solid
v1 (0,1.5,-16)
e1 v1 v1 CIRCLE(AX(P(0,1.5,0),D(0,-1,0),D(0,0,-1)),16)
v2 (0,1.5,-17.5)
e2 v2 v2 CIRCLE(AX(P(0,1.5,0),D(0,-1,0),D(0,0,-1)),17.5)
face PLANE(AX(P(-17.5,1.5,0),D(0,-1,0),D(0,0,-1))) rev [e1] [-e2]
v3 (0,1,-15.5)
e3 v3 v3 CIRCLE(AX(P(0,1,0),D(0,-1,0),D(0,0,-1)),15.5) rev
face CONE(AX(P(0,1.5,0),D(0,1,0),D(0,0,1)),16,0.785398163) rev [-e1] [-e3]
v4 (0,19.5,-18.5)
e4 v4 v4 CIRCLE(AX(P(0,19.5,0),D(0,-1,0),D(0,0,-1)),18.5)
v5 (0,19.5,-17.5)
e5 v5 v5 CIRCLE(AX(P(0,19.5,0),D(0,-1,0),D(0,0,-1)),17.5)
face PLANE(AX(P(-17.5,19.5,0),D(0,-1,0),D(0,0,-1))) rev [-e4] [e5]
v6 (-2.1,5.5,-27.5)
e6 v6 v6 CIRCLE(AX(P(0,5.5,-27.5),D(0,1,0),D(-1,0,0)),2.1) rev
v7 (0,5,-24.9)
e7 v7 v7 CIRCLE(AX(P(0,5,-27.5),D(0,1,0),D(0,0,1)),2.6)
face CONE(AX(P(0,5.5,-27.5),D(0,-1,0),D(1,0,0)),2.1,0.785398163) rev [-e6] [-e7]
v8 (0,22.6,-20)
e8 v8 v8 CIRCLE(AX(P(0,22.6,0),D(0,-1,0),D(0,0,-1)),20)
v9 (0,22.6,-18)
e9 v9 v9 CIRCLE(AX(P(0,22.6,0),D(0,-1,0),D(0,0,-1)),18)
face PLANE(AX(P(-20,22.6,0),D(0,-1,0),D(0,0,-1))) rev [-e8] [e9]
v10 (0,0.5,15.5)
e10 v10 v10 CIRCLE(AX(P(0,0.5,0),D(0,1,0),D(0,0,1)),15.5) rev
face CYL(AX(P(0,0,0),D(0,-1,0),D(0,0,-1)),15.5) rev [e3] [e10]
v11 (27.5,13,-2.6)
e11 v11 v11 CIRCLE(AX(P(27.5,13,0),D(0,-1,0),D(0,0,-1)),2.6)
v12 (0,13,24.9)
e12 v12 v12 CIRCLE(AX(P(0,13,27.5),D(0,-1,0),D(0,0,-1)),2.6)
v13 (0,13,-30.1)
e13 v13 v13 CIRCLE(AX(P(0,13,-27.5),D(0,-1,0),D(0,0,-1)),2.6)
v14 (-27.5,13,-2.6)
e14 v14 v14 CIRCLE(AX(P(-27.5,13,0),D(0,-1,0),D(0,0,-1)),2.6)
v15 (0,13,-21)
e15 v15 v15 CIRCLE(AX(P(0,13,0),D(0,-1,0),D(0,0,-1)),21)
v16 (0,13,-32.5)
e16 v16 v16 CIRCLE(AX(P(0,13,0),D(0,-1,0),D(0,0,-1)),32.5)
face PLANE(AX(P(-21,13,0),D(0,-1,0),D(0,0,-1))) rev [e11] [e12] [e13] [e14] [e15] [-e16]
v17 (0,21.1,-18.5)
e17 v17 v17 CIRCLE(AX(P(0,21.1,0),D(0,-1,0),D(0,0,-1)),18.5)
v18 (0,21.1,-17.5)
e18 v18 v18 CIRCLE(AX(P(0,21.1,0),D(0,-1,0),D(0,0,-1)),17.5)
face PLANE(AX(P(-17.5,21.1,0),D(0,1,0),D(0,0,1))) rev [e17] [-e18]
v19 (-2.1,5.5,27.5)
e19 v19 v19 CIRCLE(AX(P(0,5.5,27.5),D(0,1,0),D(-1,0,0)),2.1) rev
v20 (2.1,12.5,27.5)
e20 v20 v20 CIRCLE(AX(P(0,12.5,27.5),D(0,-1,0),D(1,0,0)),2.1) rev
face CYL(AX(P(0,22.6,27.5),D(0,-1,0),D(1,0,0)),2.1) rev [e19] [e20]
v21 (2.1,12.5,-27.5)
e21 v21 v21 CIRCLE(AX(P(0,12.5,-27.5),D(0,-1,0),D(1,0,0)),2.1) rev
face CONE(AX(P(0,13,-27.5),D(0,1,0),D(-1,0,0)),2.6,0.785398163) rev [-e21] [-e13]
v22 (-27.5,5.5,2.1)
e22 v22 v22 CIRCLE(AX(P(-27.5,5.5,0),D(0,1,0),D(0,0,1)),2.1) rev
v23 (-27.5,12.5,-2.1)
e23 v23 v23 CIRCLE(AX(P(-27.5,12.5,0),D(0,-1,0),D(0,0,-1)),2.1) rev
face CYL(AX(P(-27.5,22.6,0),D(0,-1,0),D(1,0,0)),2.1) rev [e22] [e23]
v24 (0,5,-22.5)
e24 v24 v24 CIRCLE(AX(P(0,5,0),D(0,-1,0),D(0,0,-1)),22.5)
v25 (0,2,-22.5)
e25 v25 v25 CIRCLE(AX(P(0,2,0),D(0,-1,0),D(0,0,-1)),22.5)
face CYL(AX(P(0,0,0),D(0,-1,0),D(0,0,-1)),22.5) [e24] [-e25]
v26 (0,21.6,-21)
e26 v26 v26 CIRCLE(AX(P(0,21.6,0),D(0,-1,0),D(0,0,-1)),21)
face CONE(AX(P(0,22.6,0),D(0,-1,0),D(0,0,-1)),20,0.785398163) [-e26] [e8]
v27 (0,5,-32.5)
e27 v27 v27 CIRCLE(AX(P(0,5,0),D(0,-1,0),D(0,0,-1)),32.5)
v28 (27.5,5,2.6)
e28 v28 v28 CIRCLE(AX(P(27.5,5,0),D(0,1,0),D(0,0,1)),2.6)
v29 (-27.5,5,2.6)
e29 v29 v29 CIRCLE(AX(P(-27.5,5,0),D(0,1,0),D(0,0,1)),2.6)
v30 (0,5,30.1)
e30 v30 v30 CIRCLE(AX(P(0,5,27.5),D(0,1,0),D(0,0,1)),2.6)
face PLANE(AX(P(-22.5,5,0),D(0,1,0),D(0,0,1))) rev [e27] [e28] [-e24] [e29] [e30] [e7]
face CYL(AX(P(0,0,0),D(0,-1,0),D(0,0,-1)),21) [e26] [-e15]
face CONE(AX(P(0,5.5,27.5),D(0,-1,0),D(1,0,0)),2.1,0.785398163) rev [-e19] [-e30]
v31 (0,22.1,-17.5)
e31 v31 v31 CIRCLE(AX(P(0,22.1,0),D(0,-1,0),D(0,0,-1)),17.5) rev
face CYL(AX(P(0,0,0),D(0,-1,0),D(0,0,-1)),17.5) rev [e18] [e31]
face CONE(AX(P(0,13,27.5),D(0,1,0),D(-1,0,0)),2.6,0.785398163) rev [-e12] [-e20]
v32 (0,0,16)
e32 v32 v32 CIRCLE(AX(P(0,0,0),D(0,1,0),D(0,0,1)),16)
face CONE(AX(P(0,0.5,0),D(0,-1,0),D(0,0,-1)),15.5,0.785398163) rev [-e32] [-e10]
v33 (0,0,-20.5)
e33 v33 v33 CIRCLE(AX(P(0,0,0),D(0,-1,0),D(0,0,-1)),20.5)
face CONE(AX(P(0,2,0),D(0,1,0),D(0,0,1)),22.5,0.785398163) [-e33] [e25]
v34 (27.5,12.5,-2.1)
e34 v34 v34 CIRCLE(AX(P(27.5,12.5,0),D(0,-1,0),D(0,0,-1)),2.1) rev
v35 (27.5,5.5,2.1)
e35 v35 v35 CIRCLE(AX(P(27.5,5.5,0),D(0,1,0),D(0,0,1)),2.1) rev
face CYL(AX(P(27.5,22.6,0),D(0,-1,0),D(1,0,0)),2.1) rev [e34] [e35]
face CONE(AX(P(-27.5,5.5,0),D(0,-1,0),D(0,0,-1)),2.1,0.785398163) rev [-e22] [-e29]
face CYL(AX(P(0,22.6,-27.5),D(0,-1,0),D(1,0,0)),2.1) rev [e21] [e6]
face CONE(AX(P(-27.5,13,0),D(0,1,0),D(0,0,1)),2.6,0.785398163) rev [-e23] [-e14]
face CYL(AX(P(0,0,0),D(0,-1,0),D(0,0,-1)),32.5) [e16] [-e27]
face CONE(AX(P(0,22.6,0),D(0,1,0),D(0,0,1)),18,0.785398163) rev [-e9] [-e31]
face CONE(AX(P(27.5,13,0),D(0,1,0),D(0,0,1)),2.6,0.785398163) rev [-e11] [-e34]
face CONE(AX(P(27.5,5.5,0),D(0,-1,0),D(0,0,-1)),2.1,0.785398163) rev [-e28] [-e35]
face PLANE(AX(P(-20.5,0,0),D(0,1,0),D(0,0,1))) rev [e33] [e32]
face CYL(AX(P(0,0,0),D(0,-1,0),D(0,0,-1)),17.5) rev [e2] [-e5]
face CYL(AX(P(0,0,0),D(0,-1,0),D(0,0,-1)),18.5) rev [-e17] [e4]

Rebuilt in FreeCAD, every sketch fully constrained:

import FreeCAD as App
import Part
import Sketcher
from FreeCAD import Vector
Q = App.Units.Quantity


def edges_at(feature, points):
    """Names of the edges that pass closest to the given points."""
    edges = feature.Shape.Edges
    near = lambda p: min(range(len(edges)), key=lambda i: edges[i].distToShape(Part.Vertex(*p))[0])
    return sorted({f"Edge{near(p) + 1}" for p in points})

doc = App.newDocument("Part")
params = doc.addObject("Spreadsheet::Sheet", "Params")
for row, (alias, value) in enumerate([
    ("sketch1_width", "5 mm"),
    ("sketch1_width2", "2 mm"),
    ("sketch1_width3", "1 mm"),
    ("sketch1_width4", "10 mm"),
    ("sketch1_height", "3 mm"),
    ("revolution_angle", "360 deg"),
    ("sketch2_diameter", "4.2 mm"),
    ("chamfer_size", "0.5 mm"),
    ("chamfer2_size", "0.5 mm"),
], start=1):
    params.set(f"A{row}", alias)
    params.set(f"B{row}", "=" + value)
    params.setAlias(f"B{row}", alias)

body = doc.addObject("PartDesign::Body", "Body")

sketch1 = doc.addObject("Sketcher::SketchObject", "Sketch")
body.addObject(sketch1)
sketch1.AttachmentSupport = (doc.XY_Plane, [""])
sketch1.MapMode = "FlatFace"
sketch1.addGeometry([
    Part.LineSegment(Vector(-22.5, 5, 0), Vector(-22.5, 2, 0)),
    Part.LineSegment(Vector(-22.5, 2, 0), Vector(-20.5, 0, 0)),
    Part.LineSegment(Vector(-20.5, 0, 0), Vector(-15.5, 0, 0)),
    Part.LineSegment(Vector(-15.5, 0, 0), Vector(-15.5, 1.5, 0)),
    Part.LineSegment(Vector(-15.5, 1.5, 0), Vector(-17.5, 1.5, 0)),
    Part.LineSegment(Vector(-17.5, 1.5, 0), Vector(-17.5, 19.5, 0)),
    Part.LineSegment(Vector(-17.5, 19.5, 0), Vector(-18.5, 19.5, 0)),
    Part.LineSegment(Vector(-18.5, 19.5, 0), Vector(-18.5, 21.1, 0)),
    Part.LineSegment(Vector(-18.5, 21.1, 0), Vector(-17.5, 21.1, 0)),
    Part.LineSegment(Vector(-17.5, 21.1, 0), Vector(-17.5, 22.6, 0)),
    Part.LineSegment(Vector(-17.5, 22.6, 0), Vector(-20, 22.6, 0)),
    Part.LineSegment(Vector(-20, 22.6, 0), Vector(-21, 21.6, 0)),
    Part.LineSegment(Vector(-21, 21.6, 0), Vector(-21, 13, 0)),
    Part.LineSegment(Vector(-21, 13, 0), Vector(-32.5, 13, 0)),
    Part.LineSegment(Vector(-32.5, 13, 0), Vector(-32.5, 5, 0)),
    Part.LineSegment(Vector(-32.5, 5, 0), Vector(-22.5, 5, 0)),
], False)
sketch1.addConstraint([
    Sketcher.Constraint("Coincident", 0, 2, 1, 1),
    Sketcher.Constraint("Coincident", 1, 2, 2, 1),
    Sketcher.Constraint("Coincident", 2, 2, 3, 1),
    Sketcher.Constraint("Coincident", 3, 2, 4, 1),
    Sketcher.Constraint("Coincident", 4, 2, 5, 1),
    Sketcher.Constraint("Coincident", 5, 2, 6, 1),
    Sketcher.Constraint("Coincident", 6, 2, 7, 1),
    Sketcher.Constraint("Coincident", 7, 2, 8, 1),
    Sketcher.Constraint("Coincident", 8, 2, 9, 1),
    Sketcher.Constraint("Coincident", 9, 2, 10, 1),
    Sketcher.Constraint("Coincident", 10, 2, 11, 1),
    Sketcher.Constraint("Coincident", 11, 2, 12, 1),
    Sketcher.Constraint("Coincident", 12, 2, 13, 1),
    Sketcher.Constraint("Coincident", 13, 2, 14, 1),
    Sketcher.Constraint("Coincident", 14, 2, 15, 1),
    Sketcher.Constraint("Coincident", 15, 2, 0, 1),
    Sketcher.Constraint("Vertical", 0),
    Sketcher.Constraint("Horizontal", 2),
    Sketcher.Constraint("Vertical", 3),
    Sketcher.Constraint("Horizontal", 4),
    Sketcher.Constraint("Vertical", 5),
    Sketcher.Constraint("Horizontal", 6),
    Sketcher.Constraint("Vertical", 7),
    Sketcher.Constraint("Horizontal", 8),
    Sketcher.Constraint("Vertical", 9),
    Sketcher.Constraint("Horizontal", 10),
    Sketcher.Constraint("Vertical", 12),
    Sketcher.Constraint("Horizontal", 13),
    Sketcher.Constraint("Vertical", 14),
    Sketcher.Constraint("Horizontal", 15),
    Sketcher.Constraint("PointOnObject", 1, 2, -1),
    Sketcher.Constraint("Perpendicular", 1, 11),
    Sketcher.Constraint("Vertical", 5, 2, 8, 2),
    Sketcher.Constraint("Equal", 3, 9),
    Sketcher.Constraint("DistanceX", 2, 1, 2, 2, 5.0),
    Sketcher.Constraint("DistanceX", 4, 2, 4, 1, 2.0),
    Sketcher.Constraint("DistanceX", 6, 2, 6, 1, 1.0),
    Sketcher.Constraint("DistanceX", 15, 1, 15, 2, 10.0),
    Sketcher.Constraint("DistanceY", 0, 2, 0, 1, 3.0),
    Sketcher.Constraint("DistanceY", 5, 1, 5, 2, 18.0),
    Sketcher.Constraint("DistanceY", 14, 2, 14, 1, 8.0),
    Sketcher.Constraint("Angle", 1, Q("-45 deg")),
    Sketcher.Constraint("DistanceX", 10, 2, 10, 1, 2.5),
    Sketcher.Constraint("DistanceX", 13, 2, 13, 1, 11.5),
    Sketcher.Constraint("DistanceY", 3, 1, 3, 2, 1.5),
    Sketcher.Constraint("DistanceY", 7, 1, 7, 2, 1.6),
    Sketcher.Constraint("DistanceY", 12, 2, 12, 1, 8.6),
    Sketcher.Constraint("DistanceX", 10, 2, -1, 1, 20.0),
])
sketch1.setExpression("Constraints[34]", "Params.sketch1_width")
sketch1.setExpression("Constraints[35]", "Params.sketch1_width2")
sketch1.setExpression("Constraints[36]", "Params.sketch1_width3")
sketch1.setExpression("Constraints[37]", "Params.sketch1_width4")
sketch1.setExpression("Constraints[38]", "Params.sketch1_height")
revolution = doc.addObject("PartDesign::Revolution", "Revolution")
body.addObject(revolution)
revolution.Profile = sketch1
revolution.ReferenceAxis = (sketch1, ["V_Axis"])
revolution.setExpression("Angle", "Params.revolution_angle")

sketch2 = doc.addObject("Sketcher::SketchObject", "Sketch001")
body.addObject(sketch2)
sketch2.AttachmentSupport = (doc.XZ_Plane, [""])
sketch2.MapMode = "FlatFace"
sketch2.AttachmentOffset = App.Placement(Vector(0, 0, -5), App.Rotation())
sketch2.addGeometry([
    Part.Circle(Vector(0, 27.5, 0), Vector(0, 0, 1), 2.1),
    Part.Circle(Vector(27.5, 0, 0), Vector(0, 0, 1), 2.1),
    Part.Circle(Vector(0, -27.5, 0), Vector(0, 0, 1), 2.1),
    Part.Circle(Vector(-27.5, 0, 0), Vector(0, 0, 1), 2.1),
], False)
sketch2.addConstraint([
    Sketcher.Constraint("Equal", 0, 1),
    Sketcher.Constraint("Equal", 1, 2),
    Sketcher.Constraint("Equal", 2, 3),
    Sketcher.Constraint("Symmetric", 0, 3, 2, 3, -1, 1),
    Sketcher.Constraint("Symmetric", 1, 3, 3, 3, -1, 1),
    Sketcher.Constraint("PointOnObject", 0, 3, -2),
    Sketcher.Constraint("PointOnObject", 1, 3, -1),
    Sketcher.Constraint("Diameter", 0, 4.2),
    Sketcher.Constraint("DistanceY", 2, 3, 0, 3, 55.0),
    Sketcher.Constraint("DistanceX", 3, 3, 1, 3, 55.0),
])
sketch2.setExpression("Constraints[7]", "Params.sketch2_diameter")
pocket1 = doc.addObject("PartDesign::Pocket", "Pocket")
body.addObject(pocket1)
pocket1.Profile = sketch2
pocket1.Type = "ThroughAll"
doc.recompute()

chamfer = doc.addObject("PartDesign::Chamfer", "Chamfer")
body.addObject(chamfer)
chamfer.Base = (pocket1, edges_at(pocket1, [(0, 0, 15.5), (0, 1.5, 15.5), (0, 22.6, 17.5)]))
chamfer.setExpression("Size", "Params.chamfer_size")
doc.recompute()

chamfer2 = doc.addObject("PartDesign::Chamfer", "Chamfer001")
body.addObject(chamfer2)
chamfer2.Base = (chamfer, edges_at(chamfer, [
    (-2.1, 13, 27.5),
    (-2.1, 5, 27.5),
    (25.4, 13, 0),
    (25.4, 5, 0),
    (-2.1, 13, -27.5),
    (-2.1, 5, -27.5),
    (-29.6, 13, 0),
    (-29.6, 5, 0),
]))
chamfer2.setExpression("Size", "Params.chamfer2_size")

doc.recompute()
